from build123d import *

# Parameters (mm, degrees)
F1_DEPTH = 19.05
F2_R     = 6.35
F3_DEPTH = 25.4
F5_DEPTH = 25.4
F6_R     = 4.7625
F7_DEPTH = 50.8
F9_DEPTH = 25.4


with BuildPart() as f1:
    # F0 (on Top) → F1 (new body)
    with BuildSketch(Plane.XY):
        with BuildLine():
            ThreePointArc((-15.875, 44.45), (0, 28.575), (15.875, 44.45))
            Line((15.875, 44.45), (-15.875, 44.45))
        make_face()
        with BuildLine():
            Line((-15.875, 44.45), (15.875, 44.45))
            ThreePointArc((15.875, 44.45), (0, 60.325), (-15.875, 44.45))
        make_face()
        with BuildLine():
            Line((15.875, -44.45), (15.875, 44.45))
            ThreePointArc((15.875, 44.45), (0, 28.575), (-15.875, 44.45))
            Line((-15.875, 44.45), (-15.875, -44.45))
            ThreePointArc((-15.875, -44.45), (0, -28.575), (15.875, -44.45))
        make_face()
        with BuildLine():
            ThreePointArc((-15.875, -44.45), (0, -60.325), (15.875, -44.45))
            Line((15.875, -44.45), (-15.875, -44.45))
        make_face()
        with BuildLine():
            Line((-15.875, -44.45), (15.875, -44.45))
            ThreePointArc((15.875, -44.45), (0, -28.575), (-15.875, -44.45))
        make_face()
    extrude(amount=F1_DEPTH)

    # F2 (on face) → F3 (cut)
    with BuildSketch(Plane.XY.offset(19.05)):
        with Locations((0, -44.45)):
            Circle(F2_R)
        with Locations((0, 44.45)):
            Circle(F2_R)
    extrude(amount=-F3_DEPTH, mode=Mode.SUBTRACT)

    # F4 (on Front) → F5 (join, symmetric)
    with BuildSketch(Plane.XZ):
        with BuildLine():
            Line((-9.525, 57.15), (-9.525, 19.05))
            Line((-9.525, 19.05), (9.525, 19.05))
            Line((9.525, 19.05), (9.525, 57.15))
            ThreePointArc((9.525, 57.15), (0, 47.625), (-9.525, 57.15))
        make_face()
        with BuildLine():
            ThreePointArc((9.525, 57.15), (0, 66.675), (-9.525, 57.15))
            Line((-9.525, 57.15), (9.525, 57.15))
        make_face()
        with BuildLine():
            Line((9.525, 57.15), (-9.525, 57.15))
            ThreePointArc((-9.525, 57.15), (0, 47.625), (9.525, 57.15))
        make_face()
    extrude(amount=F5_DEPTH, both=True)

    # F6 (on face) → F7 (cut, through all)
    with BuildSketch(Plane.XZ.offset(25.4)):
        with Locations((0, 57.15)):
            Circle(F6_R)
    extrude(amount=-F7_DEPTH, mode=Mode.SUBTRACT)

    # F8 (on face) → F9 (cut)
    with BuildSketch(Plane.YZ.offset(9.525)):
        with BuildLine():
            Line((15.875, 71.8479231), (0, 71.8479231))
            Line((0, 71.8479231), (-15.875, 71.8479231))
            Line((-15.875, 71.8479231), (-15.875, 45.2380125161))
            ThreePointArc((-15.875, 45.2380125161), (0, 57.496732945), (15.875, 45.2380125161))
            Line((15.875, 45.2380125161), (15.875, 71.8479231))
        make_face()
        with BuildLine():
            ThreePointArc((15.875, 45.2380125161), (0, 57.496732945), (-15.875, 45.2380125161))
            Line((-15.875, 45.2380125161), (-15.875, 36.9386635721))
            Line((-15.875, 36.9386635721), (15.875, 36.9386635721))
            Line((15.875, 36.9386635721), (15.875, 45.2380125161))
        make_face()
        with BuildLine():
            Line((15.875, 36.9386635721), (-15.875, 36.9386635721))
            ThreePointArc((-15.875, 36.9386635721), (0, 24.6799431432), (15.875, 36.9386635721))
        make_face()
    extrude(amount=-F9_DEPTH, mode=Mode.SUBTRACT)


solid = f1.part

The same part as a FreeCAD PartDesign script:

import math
import FreeCAD as App
import Part
import Sketcher
from FreeCAD import Vector
Q = App.Units.Quantity

doc = App.newDocument("Part")
params = doc.addObject("Spreadsheet::Sheet", "Params")
for row, (alias, value) in enumerate([
    ("sketch1_height", "3.5 in"),
    ("sketch1_radius", "0.625 in"),
    ("pad1_length", "0.75 in"),
    ("sketch2_diameter", "0.5 in"),
    ("pocket1_length", "1 in"),
    ("sketch3_height", "1.5 in"),
    ("sketch3_radius", "0.375 in"),
    ("pad2_length", "2 in"),
    ("sketch4_diameter", "0.375 in"),
    ("sketch5_width", "1.25 in"),
    ("pocket3_length", "1 in"),
], start=1):
    params.set(f"A{row}", alias)
    params.set(f"B{row}", "=" + value)
    params.setAlias(f"B{row}", alias)

body = doc.addObject("PartDesign::Body", "Body")

# Sketch on XY plane
sketch1 = doc.addObject("Sketcher::SketchObject", "Sketch")
body.addObject(sketch1)
sketch1.AttachmentSupport = (doc.XY_Plane, [""])
sketch1.MapMode = "FlatFace"
sketch1.addGeometry([
    Part.ArcOfCircle(Part.Circle(Vector(0, 44, 0), Vector(0, 0, 1), 16), math.radians(0), math.radians(180)),
    Part.LineSegment(Vector(-16, 44, 0), Vector(-16, -44, 0)),
    Part.ArcOfCircle(Part.Circle(Vector(0, -44, 0), Vector(0, 0, 1), 16), math.radians(180), math.radians(360)),
    Part.LineSegment(Vector(16, -44, 0), Vector(16, 44, 0)),
], False)
sketch1.addConstraint([
    Sketcher.Constraint("Tangent", 0, 2, 1, 1),
    Sketcher.Constraint("Tangent", 1, 2, 2, 1),
    Sketcher.Constraint("Tangent", 2, 2, 3, 1),
    Sketcher.Constraint("Tangent", 3, 2, 0, 1),
    Sketcher.Constraint("Vertical", 1),
    Sketcher.Constraint("Vertical", 3),
    Sketcher.Constraint("Symmetric", 0, 3, 2, 3, -1, 1),
    Sketcher.Constraint("DistanceY", 1, 2, 1, 1, Q("3.5 in")),
    Sketcher.Constraint("Radius", 0, Q("0.625 in")),
])
sketch1.setExpression("Constraints[7]", "Params.sketch1_height")
sketch1.setExpression("Constraints[8]", "Params.sketch1_radius")
pad1 = doc.addObject("PartDesign::Pad", "Pad")
body.addObject(pad1)
pad1.Profile = sketch1
pad1.setExpression("Length", "Params.pad1_length")

# Sketch on XY plane
sketch2 = doc.addObject("Sketcher::SketchObject", "Sketch001")
body.addObject(sketch2)
sketch2.AttachmentSupport = (doc.XY_Plane, [""])
sketch2.MapMode = "FlatFace"
sketch2.AttachmentOffset = App.Placement(Vector(0, 0, 0.75 * 25.4), App.Rotation())
sketch2.addGeometry([
    Part.Circle(Vector(0, -44, 0), Vector(0, 0, 1), 6),
    Part.Circle(Vector(0, 44, 0), Vector(0, 0, 1), 6),
], False)
sketch2.addConstraint([
    Sketcher.Constraint("Equal", 0, 1),
    Sketcher.Constraint("Symmetric", 0, 3, 1, 3, -1, 1),
    Sketcher.Constraint("PointOnObject", 0, 3, -2),
    Sketcher.Constraint("Diameter", 0, Q("0.5 in")),
    Sketcher.Constraint("DistanceY", 0, 3, 1, 3, Q("3.5 in")),
])
sketch2.setExpression("Constraints[3]", "Params.sketch2_diameter")
pocket1 = doc.addObject("PartDesign::Pocket", "Pocket")
body.addObject(pocket1)
pocket1.Profile = sketch2
pocket1.setExpression("Length", "Params.pocket1_length")

# Sketch on XZ plane
sketch3 = doc.addObject("Sketcher::SketchObject", "Sketch002")
body.addObject(sketch3)
sketch3.AttachmentSupport = (doc.XZ_Plane, [""])
sketch3.MapMode = "FlatFace"
sketch3.addGeometry([
    Part.LineSegment(Vector(-10, 57, 0), Vector(-10, 19, 0)),
    Part.LineSegment(Vector(-10, 19, 0), Vector(10, 19, 0)),
    Part.LineSegment(Vector(10, 19, 0), Vector(10, 57, 0)),
    Part.ArcOfCircle(Part.Circle(Vector(0, 57, 0), Vector(0, 0, 1), 10), math.radians(0), math.radians(180)),
], False)
sketch3.addConstraint([
    Sketcher.Constraint("Coincident", 0, 2, 1, 1),
    Sketcher.Constraint("Coincident", 1, 2, 2, 1),
    Sketcher.Constraint("Tangent", 2, 2, 3, 1),
    Sketcher.Constraint("Tangent", 3, 2, 0, 1),
    Sketcher.Constraint("Vertical", 0),
    Sketcher.Constraint("Horizontal", 1),
    Sketcher.Constraint("Vertical", 2),
    Sketcher.Constraint("PointOnObject", 3, 3, -2),
    Sketcher.Constraint("DistanceY", 0, 2, 0, 1, Q("1.5 in")),
    Sketcher.Constraint("Radius", 3, Q("0.375 in")),
    Sketcher.Constraint("DistanceY", -1, 1, 3, 3, Q("2.25 in")),
])
sketch3.setExpression("Constraints[8]", "Params.sketch3_height")
sketch3.setExpression("Constraints[9]", "Params.sketch3_radius")
pad2 = doc.addObject("PartDesign::Pad", "Pad001")
body.addObject(pad2)
pad2.Profile = sketch3
pad2.setExpression("Length", "Params.pad2_length")
pad2.Midplane = True

# Sketch on XZ plane
sketch4 = doc.addObject("Sketcher::SketchObject", "Sketch003")
body.addObject(sketch4)
sketch4.AttachmentSupport = (doc.XZ_Plane, [""])
sketch4.MapMode = "FlatFace"
sketch4.AttachmentOffset = App.Placement(Vector(0, 0, 1 * 25.4), App.Rotation())
sketch4.addGeometry(Part.Circle(Vector(0, 57.1, 0), Vector(0, 0, 1), 4.8), False)
sketch4.addConstraint([
    Sketcher.Constraint("PointOnObject", 0, 3, -2),
    Sketcher.Constraint("Diameter", 0, Q("0.375 in")),
    Sketcher.Constraint("DistanceY", -1, 1, 0, 3, Q("2.25 in")),
])
sketch4.setExpression("Constraints[1]", "Params.sketch4_diameter")
pocket2 = doc.addObject("PartDesign::Pocket", "Pocket001")
body.addObject(pocket2)
pocket2.Profile = sketch4
pocket2.Type = "ThroughAll"

# Sketch on YZ plane
sketch5 = doc.addObject("Sketcher::SketchObject", "Sketch004")
body.addObject(sketch5)
sketch5.AttachmentSupport = (doc.YZ_Plane, [""])
sketch5.MapMode = "FlatFace"
sketch5.AttachmentOffset = App.Placement(Vector(0, 0, 0.375 * 25.4), App.Rotation())
sketch5.addGeometry([
    Part.LineSegment(Vector(16, 72, 0), Vector(-16, 72, 0)),
    Part.LineSegment(Vector(-16, 72, 0), Vector(-16, 37, 0)),
    Part.ArcOfCircle(Part.Circle(Vector(0, 41, 0), Vector(0, 0, 1), 16), math.radians(-165), math.radians(-15)),
    Part.LineSegment(Vector(16, 37, 0), Vector(16, 72, 0)),
], False)
sketch5.addConstraint([
    Sketcher.Constraint("Coincident", 0, 2, 1, 1),
    Sketcher.Constraint("Coincident", 1, 2, 2, 1),
    Sketcher.Constraint("Coincident", 2, 2, 3, 1),
    Sketcher.Constraint("Coincident", 3, 2, 0, 1),
    Sketcher.Constraint("Horizontal", 0),
    Sketcher.Constraint("Vertical", 1),
    Sketcher.Constraint("Vertical", 3),
    Sketcher.Constraint("Symmetric", 1, 2, 2, 2, -2),
    Sketcher.Constraint("DistanceX", 0, 2, 0, 1, Q("1.25 in")),
    Sketcher.Constraint("Radius", 2, Q("16.408395 mm")),
    Sketcher.Constraint("DistanceY", 1, 2, 1, 1, Q("34.90926 mm")),
    Sketcher.Constraint("DistanceY", -1, 1, 2, 3, Q("41.088338 mm")),
])
sketch5.setExpression("Constraints[8]", "Params.sketch5_width")
pocket3 = doc.addObject("PartDesign::Pocket", "Pocket002")
body.addObject(pocket3)
pocket3.Profile = sketch5
pocket3.setExpression("Length", "Params.pocket3_length")

doc.recompute()
